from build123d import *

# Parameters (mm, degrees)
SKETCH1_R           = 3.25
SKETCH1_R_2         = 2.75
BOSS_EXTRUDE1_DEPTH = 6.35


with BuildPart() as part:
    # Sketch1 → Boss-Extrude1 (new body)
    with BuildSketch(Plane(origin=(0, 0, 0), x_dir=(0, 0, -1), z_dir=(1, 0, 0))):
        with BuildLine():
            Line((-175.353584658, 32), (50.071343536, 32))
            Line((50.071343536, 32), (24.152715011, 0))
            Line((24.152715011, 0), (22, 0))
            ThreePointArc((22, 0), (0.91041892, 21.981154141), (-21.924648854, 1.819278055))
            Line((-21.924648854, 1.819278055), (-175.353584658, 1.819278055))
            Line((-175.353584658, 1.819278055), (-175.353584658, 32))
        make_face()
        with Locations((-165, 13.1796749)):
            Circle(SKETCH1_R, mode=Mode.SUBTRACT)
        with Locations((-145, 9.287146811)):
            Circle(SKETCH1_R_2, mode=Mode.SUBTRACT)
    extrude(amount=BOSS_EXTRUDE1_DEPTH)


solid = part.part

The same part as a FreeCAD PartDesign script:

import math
import FreeCAD as App
import Part
import Sketcher
from FreeCAD import Vector
Q = App.Units.Quantity

doc = App.newDocument("Part")
body = doc.addObject("PartDesign::Body", "Body")

# Sketch on YZ plane
sketch1 = doc.addObject("Sketcher::SketchObject", "Sketch")
body.addObject(sketch1)
sketch1.AttachmentSupport = (doc.YZ_Plane, [""])
sketch1.MapMode = "FlatFace"
sketch1.addGeometry([
    Part.LineSegment(Vector(32, -50.071344, 0), Vector(32, 175.353585, 0)),  # 0
    Part.LineSegment(Vector(32, 175.353585, 0), Vector(1.819278, 175.353585, 0)),  # 1
    Part.LineSegment(Vector(1.819278, 175.353585, 0), Vector(1.819278, 21.924649, 0)),  # 2
    Part.ArcOfCircle(Part.Circle(Vector(0, 0, 0), Vector(0, 0, 1), 22), math.radians(-90), math.radians(85.25654)),  # 3
    Part.LineSegment(Vector(0, -22, 0), Vector(0, -24.152715, 0)),  # 4
    Part.LineSegment(Vector(0, -24.152715, 0), Vector(32, -50.071344, 0)),  # 5
    Part.Circle(Vector(9.287147, 145, 0), Vector(0, 0, 1), 2.75),  # 6
    Part.Circle(Vector(13.179675, 165, 0), Vector(0, 0, 1), 3.25),  # 7
], False)
sketch1.addConstraint([
    Sketcher.Constraint("Coincident", 0, 2, 1, 1),
    Sketcher.Constraint("Coincident", 1, 2, 2, 1),
    Sketcher.Constraint("Coincident", 2, 2, 3, 2),
    Sketcher.Constraint("Coincident", 3, 1, 4, 1),
    Sketcher.Constraint("Coincident", 4, 2, 5, 1),
    Sketcher.Constraint("Coincident", 5, 2, 0, 1),
    Sketcher.Constraint("Vertical", 0),
    Sketcher.Constraint("Horizontal", 1),
    Sketcher.Constraint("Vertical", 2),
    Sketcher.Constraint("Vertical", 4),
    Sketcher.Constraint("Coincident", 3, 3, -1, 1),
    Sketcher.Constraint("PointOnObject", 3, 1, -2),
    Sketcher.Constraint("Radius", 3, Q("22 mm")),
    Sketcher.Constraint("Diameter", 6, Q("5.5 mm")),
    Sketcher.Constraint("Diameter", 7, Q("6.5 mm")),
    Sketcher.Constraint("DistanceY", -1, 1, 6, 3, Q("145 mm")),
    Sketcher.Constraint("DistanceY", -1, 1, 7, 3, Q("165 mm")),
    Sketcher.Constraint("DistanceX", -1, 1, 0, 2, Q("32 mm")),
    Sketcher.Constraint("DistanceX", 1, 2, 1, 1, Q("30.180722 mm")),
    Sketcher.Constraint("DistanceY", 0, 1, 0, 2, Q("225.424928 mm")),
    Sketcher.Constraint("DistanceY", 2, 2, 2, 1, Q("153.428936 mm")),
    Sketcher.Constraint("DistanceY", 4, 2, 4, 1, Q("2.152715 mm")),
    Sketcher.Constraint("DistanceX", 6, 3, 7, 3, Q("3.892528 mm")),
    Sketcher.Constraint("DistanceX", 1, 2, 6, 3, Q("7.467869 mm")),
])
pad1 = doc.addObject("PartDesign::Pad", "Pad")
body.addObject(pad1)
pad1.Profile = sketch1
pad1.Length = 6.35

doc.recompute()
